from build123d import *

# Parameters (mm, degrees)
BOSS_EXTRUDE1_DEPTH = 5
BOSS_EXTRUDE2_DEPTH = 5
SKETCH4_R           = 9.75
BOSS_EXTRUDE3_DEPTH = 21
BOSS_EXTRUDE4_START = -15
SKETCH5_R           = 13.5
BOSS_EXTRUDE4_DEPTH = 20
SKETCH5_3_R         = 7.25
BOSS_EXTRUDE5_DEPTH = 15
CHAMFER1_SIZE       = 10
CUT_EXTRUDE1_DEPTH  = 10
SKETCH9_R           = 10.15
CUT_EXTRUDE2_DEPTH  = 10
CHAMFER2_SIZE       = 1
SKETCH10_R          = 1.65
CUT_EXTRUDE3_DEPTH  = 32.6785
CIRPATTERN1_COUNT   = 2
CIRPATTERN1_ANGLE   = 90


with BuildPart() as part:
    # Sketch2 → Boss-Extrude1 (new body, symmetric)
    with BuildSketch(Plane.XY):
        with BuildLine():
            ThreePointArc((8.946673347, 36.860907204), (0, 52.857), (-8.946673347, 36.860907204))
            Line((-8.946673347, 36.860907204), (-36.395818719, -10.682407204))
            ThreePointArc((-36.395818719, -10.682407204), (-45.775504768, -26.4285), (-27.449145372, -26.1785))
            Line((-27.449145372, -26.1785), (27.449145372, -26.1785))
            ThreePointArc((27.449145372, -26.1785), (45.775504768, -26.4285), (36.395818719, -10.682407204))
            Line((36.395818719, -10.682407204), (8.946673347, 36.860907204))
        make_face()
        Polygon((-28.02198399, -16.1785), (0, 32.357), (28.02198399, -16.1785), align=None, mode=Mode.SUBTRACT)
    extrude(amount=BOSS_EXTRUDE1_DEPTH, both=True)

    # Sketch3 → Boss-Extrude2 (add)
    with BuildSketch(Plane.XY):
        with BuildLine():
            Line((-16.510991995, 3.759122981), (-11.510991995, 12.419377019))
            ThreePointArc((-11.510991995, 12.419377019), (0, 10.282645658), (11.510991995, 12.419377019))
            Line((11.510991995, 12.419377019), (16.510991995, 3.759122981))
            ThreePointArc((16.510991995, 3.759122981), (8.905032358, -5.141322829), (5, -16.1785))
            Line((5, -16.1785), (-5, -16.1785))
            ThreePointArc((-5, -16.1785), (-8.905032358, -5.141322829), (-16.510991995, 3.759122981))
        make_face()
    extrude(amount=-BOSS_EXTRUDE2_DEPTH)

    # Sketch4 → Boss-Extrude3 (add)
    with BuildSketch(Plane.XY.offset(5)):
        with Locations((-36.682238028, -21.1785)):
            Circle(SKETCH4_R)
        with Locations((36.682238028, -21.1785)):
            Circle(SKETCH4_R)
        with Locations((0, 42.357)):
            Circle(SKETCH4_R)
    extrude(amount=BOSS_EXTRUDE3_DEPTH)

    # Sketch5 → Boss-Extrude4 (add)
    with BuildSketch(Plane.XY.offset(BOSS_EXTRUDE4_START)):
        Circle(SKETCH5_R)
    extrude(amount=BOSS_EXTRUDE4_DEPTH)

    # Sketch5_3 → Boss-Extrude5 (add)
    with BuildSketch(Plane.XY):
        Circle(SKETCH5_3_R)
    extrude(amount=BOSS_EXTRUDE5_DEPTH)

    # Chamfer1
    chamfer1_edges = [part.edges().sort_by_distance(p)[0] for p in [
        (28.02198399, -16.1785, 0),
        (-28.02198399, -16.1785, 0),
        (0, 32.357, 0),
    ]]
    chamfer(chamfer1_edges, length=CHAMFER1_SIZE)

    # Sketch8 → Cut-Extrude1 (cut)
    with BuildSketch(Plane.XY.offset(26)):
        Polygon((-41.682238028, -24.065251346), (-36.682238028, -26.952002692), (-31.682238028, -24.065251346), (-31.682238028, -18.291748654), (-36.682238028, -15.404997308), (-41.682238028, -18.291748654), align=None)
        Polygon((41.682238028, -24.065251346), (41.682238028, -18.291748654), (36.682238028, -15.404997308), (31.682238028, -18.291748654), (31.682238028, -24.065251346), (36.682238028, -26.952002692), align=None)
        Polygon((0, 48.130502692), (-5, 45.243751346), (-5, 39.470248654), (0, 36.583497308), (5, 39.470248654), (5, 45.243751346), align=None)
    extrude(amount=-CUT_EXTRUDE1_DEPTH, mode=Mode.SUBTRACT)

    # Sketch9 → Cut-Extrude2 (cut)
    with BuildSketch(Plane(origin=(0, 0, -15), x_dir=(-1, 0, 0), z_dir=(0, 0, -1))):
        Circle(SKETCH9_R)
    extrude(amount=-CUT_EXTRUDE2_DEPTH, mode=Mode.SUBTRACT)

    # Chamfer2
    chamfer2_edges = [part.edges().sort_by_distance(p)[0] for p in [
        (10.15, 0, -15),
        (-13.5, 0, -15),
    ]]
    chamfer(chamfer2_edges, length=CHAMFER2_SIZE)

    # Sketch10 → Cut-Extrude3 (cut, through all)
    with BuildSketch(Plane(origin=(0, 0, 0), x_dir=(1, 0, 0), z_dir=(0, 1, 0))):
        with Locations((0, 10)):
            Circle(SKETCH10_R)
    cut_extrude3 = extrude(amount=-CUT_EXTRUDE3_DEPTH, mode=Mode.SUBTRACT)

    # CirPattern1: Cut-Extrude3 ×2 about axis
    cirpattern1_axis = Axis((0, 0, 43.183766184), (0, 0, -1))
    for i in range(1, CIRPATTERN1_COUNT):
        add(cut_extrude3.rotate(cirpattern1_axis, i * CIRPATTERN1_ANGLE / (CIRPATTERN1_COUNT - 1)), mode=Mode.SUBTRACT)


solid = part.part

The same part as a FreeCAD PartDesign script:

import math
import FreeCAD as App
import Part
import Sketcher
Q = App.Units.Quantity


def edges_at(feature, points):
    """Names of the edges that pass closest to the given points."""
    edges = feature.Shape.Edges
    near = lambda p: min(range(len(edges)), key=lambda i: edges[i].distToShape(Part.Vertex(*p))[0])
    return sorted({f"Edge{near(p) + 1}" for p in points})


def add_polygon(sketch, points):
    """Adds a closed chain of lines whose ends are joined by coincident constraints."""
    first, n = sketch.GeometryCount, len(points)
    for a, b in zip(points, points[1:] + points[:1]):
        sketch.addGeometry(Part.LineSegment(App.Vector(*a, 0), App.Vector(*b, 0)), False)
    for i in range(n):
        sketch.addConstraint(Sketcher.Constraint("Coincident", first + i, 2, first + (i + 1) % n, 1))

doc = App.newDocument("Part")
body = doc.addObject("PartDesign::Body", "Body")

# Sketch on XY plane
sketch1 = body.newObject("Sketcher::SketchObject", "Sketch")
sketch1.AttachmentSupport = (doc.getObject("XY_Plane"), [""])
sketch1.MapMode = "FlatFace"
sketch1.addGeometry(Part.ArcOfCircle(Part.Circle(App.Vector(0, 42, 0), App.Vector(0, 0, 1), 10), math.radians(-32), math.radians(212)), False)  # 0
sketch1.addGeometry(Part.LineSegment(App.Vector(-9, 37, 0), App.Vector(-36, -11, 0)), False)  # 1
sketch1.addGeometry(Part.ArcOfCircle(Part.Circle(App.Vector(-37, -21, 0), App.Vector(0, 0, 1), 10), math.radians(88), math.radians(332)), False)  # 2
sketch1.addGeometry(Part.LineSegment(App.Vector(-27, -26, 0), App.Vector(27, -26, 0)), False)  # 3
sketch1.addGeometry(Part.ArcOfCircle(Part.Circle(App.Vector(37, -21, 0), App.Vector(0, 0, 1), 10), math.radians(-152), math.radians(92)), False)  # 4
sketch1.addGeometry(Part.LineSegment(App.Vector(36, -11, 0), App.Vector(9, 37, 0)), False)  # 5
add_polygon(sketch1, [(28, -16), (-28, -16), (0, 32)])  # lines 6-8
sketch1.addConstraint([
    Sketcher.Constraint("Coincident", 0, 2, 1, 1),
    Sketcher.Constraint("Coincident", 1, 2, 2, 1),
    Sketcher.Constraint("Coincident", 2, 2, 3, 1),
    Sketcher.Constraint("Coincident", 3, 2, 4, 1),
    Sketcher.Constraint("Coincident", 4, 2, 5, 1),
    Sketcher.Constraint("Coincident", 5, 2, 0, 1),
    Sketcher.Constraint("Horizontal", 3),
    Sketcher.Constraint("Horizontal", 6),
    Sketcher.Constraint("Equal", 0, 2),
    Sketcher.Constraint("Equal", 2, 4),
    Sketcher.Constraint("Symmetric", 2, 3, 4, 3, -2),
    Sketcher.Constraint("Symmetric", 0, 2, 5, 2, -2),
    Sketcher.Constraint("PointOnObject", 7, 2, -2),
    Sketcher.Constraint("Parallel", 1, 7),
    Sketcher.Constraint("Parallel", 5, 8),
    Sketcher.Constraint("Horizontal", 1, 2, 4, 2),
    Sketcher.Constraint("Radius", 0, 10.5),
    Sketcher.Constraint("Angle", 1, Q("-120 deg")),
    Sketcher.Constraint("DistanceY", 2, 2, 2, 3, 5.0),
    Sketcher.Constraint("DistanceY", 2, 3, 6, 2, 5.0),
    Sketcher.Constraint("DistanceY", 7, 2, 0, 3, 10.0),
    Sketcher.Constraint("DistanceY", -1, 1, 0, 3, 42.357),
    Sketcher.Constraint("DistanceX", 3, 1, 3, 2, 54.898291),
    Sketcher.Constraint("DistanceY", 2, 3, -1, 1, 21.1785),
    Sketcher.Constraint("Distance", 1, 54.898291),
])
pad1 = body.newObject("PartDesign::Pad", "Pad")
pad1.Profile = sketch1
pad1.Length = 10
pad1.Midplane = True

# Sketch on XY plane
sketch2 = body.newObject("Sketcher::SketchObject", "Sketch001")
sketch2.AttachmentSupport = (doc.getObject("XY_Plane"), [""])
sketch2.MapMode = "FlatFace"
sketch2.addGeometry([
    Part.LineSegment(App.Vector(-12, 12, 0), App.Vector(-17, 4, 0)),  # 0
    Part.ArcOfCircle(Part.Circle(App.Vector(-37, -21, 0), App.Vector(0, 0, 1), 32), math.radians(9), math.radians(51)),  # 1
    Part.LineSegment(App.Vector(-5, -16, 0), App.Vector(5, -16, 0)),  # 2
    Part.ArcOfCircle(Part.Circle(App.Vector(37, -21, 0), App.Vector(0, 0, 1), 32), math.radians(129), math.radians(171)),  # 3
    Part.LineSegment(App.Vector(17, 4, 0), App.Vector(12, 12, 0)),  # 4
    Part.ArcOfCircle(Part.Circle(App.Vector(0, 42, 0), App.Vector(0, 0, 1), 32), math.radians(-111), math.radians(-69)),  # 5
], False)
sketch2.addConstraint([
    Sketcher.Constraint("Coincident", 0, 2, 1, 2),
    Sketcher.Constraint("Coincident", 1, 1, 2, 1),
    Sketcher.Constraint("Coincident", 2, 2, 3, 2),
    Sketcher.Constraint("Coincident", 3, 1, 4, 1),
    Sketcher.Constraint("Coincident", 4, 2, 5, 2),
    Sketcher.Constraint("Coincident", 5, 1, 0, 1),
    Sketcher.Constraint("Horizontal", 2),
    Sketcher.Constraint("Equal", 1, 3),
    Sketcher.Constraint("Equal", 3, 5),
    Sketcher.Constraint("Symmetric", 1, 3, 3, 3, -2),
    Sketcher.Constraint("Symmetric", 4, 2, 5, 1, -2),
    Sketcher.Constraint("Horizontal", 0, 2, 3, 1),
    Sketcher.Constraint("DistanceX", 2, 1, 2, 2, 10.0),
    Sketcher.Constraint("Angle", 0, Q("-120 deg")),
    Sketcher.Constraint("Distance", 0, 10.0),
    Sketcher.Constraint("DistanceY", 1, 3, 1, 1, 5.0),
    Sketcher.Constraint("DistanceY", -1, 1, 5, 3, 42.357),
    Sketcher.Constraint("Radius", 1, 32.074354),
    Sketcher.Constraint("DistanceY", 1, 3, -1, 1, 21.1785),
])
pad2 = body.newObject("PartDesign::Pad", "Pad001")
pad2.Profile = sketch2
pad2.Length = 5
pad2.Reversed = True

# Sketch on XY plane
sketch3 = body.newObject("Sketcher::SketchObject", "Sketch002")
sketch3.AttachmentSupport = (doc.getObject("XY_Plane"), [""])
sketch3.MapMode = "FlatFace"
sketch3.AttachmentOffset = App.Placement(App.Vector(0, 0, 5), App.Rotation())
sketch3.addGeometry([
    Part.Circle(App.Vector(-37, -21, 0), App.Vector(0, 0, 1), 10),
    Part.Circle(App.Vector(37, -21, 0), App.Vector(0, 0, 1), 10),
    Part.Circle(App.Vector(0, 42, 0), App.Vector(0, 0, 1), 10),
], False)
sketch3.addConstraint([
    Sketcher.Constraint("Equal", 0, 1),
    Sketcher.Constraint("Equal", 1, 2),
    Sketcher.Constraint("Symmetric", 0, 3, 1, 3, -2),
    Sketcher.Constraint("PointOnObject", 2, 3, -2),
    Sketcher.Constraint("Diameter", 0, 19.5),
    Sketcher.Constraint("DistanceY", -1, 1, 2, 3, 42.357),
    Sketcher.Constraint("DistanceY", 0, 3, -1, 1, 21.1785),
    Sketcher.Constraint("DistanceX", 0, 3, -1, 1, 36.682238),
])
pad3 = body.newObject("PartDesign::Pad", "Pad002")
pad3.Profile = sketch3
pad3.Length = 21

# Sketch on XY plane
sketch4 = body.newObject("Sketcher::SketchObject", "Sketch003")
sketch4.AttachmentSupport = (doc.getObject("XY_Plane"), [""])
sketch4.MapMode = "FlatFace"
sketch4.AttachmentOffset = App.Placement(App.Vector(0, 0, -15), App.Rotation())
sketch4.addGeometry(Part.Circle(App.Vector(0, 0, 0), App.Vector(0, 0, 1), 14), False)
sketch4.addConstraint([
    Sketcher.Constraint("Coincident", 0, 3, -1, 1),
    Sketcher.Constraint("Diameter", 0, 27.0),
])
pad4 = body.newObject("PartDesign::Pad", "Pad003")
pad4.Profile = sketch4
pad4.Length = 20

# Sketch on XY plane
sketch5 = body.newObject("Sketcher::SketchObject", "Sketch004")
sketch5.AttachmentSupport = (doc.getObject("XY_Plane"), [""])
sketch5.MapMode = "FlatFace"
sketch5.addGeometry(Part.Circle(App.Vector(0, 0, 0), App.Vector(0, 0, 1), 7), False)
sketch5.addConstraint([
    Sketcher.Constraint("Coincident", 0, 3, -1, 1),
    Sketcher.Constraint("Diameter", 0, 14.5),
])
pad5 = body.newObject("PartDesign::Pad", "Pad004")
pad5.Profile = sketch5
pad5.Length = 15
doc.recompute()

chamfer = body.newObject("PartDesign::Chamfer", "Chamfer")
chamfer.Base = (pad5, edges_at(pad5, [(28.022, -16.178, 0), (-28.022, -16.178, 0), (0, 32.357, 0)]))
chamfer.Size = 10

# Sketch on XY plane
sketch6 = body.newObject("Sketcher::SketchObject", "Sketch005")
sketch6.AttachmentSupport = (doc.getObject("XY_Plane"), [""])
sketch6.MapMode = "FlatFace"
sketch6.AttachmentOffset = App.Placement(App.Vector(0, 0, 26), App.Rotation())
add_polygon(sketch6, [(-42, -24), (-37, -27), (-32, -24), (-32, -18), (-37, -15), (-42, -18)])  # lines 0-5
add_polygon(sketch6, [(42, -24), (42, -18), (37, -15), (32, -18), (32, -24), (37, -27)])  # lines 6-11
add_polygon(sketch6, [(0, 48), (-5, 45), (-5, 39), (0, 37), (5, 39), (5, 45)])  # lines 12-17
sketch6.addConstraint([
    Sketcher.Constraint("Vertical", 2),
    Sketcher.Constraint("Vertical", 5),
    Sketcher.Constraint("Vertical", 6),
    Sketcher.Constraint("Vertical", 9),
    Sketcher.Constraint("Vertical", 13),
    Sketcher.Constraint("Vertical", 16),
    Sketcher.Constraint("Symmetric", 4, 2, 6, 2, -2),
    Sketcher.Constraint("Symmetric", 3, 2, 7, 2, -2),
    Sketcher.Constraint("Symmetric", 2, 2, 8, 2, -2),
    Sketcher.Constraint("Symmetric", 0, 2, 10, 2, -2),
    Sketcher.Constraint("Symmetric", 13, 2, 15, 2, -2),
    Sketcher.Constraint("PointOnObject", 14, 2, -2),
    Sketcher.Constraint("PointOnObject", 17, 2, -2),
    Sketcher.Constraint("Parallel", 0, 3),
    Sketcher.Constraint("Parallel", 1, 4),
    Sketcher.Constraint("Parallel", 3, 7),
    Sketcher.Constraint("Parallel", 7, 10),
    Sketcher.Constraint("Parallel", 8, 11),
    Sketcher.Constraint("Parallel", 11, 12),
    Sketcher.Constraint("Parallel", 10, 14),
    Sketcher.Constraint("Parallel", 14, 17),
    Sketcher.Constraint("Horizontal", 2, 2, 4, 2),
    Sketcher.Constraint("Horizontal", 1, 2, 5, 2),
    Sketcher.Constraint("Equal", 9, 13),
    Sketcher.Constraint("Equal", 11, 12),
    Sketcher.Constraint("Angle", 0, Q("-30 deg")),
    Sketcher.Constraint("DistanceX", 12, 2, -1, 1, 5.0),
    Sketcher.Constraint("DistanceY", 2, 2, 12, 2, 63.5355),
    Sketcher.Constraint("DistanceY", 2, 1, 2, 2, 5.773503),
    Sketcher.Constraint("DistanceX", 0, 2, -1, 1, 36.682238),
    Sketcher.Constraint("DistanceY", 1, 2, -1, 1, 24.065251),
])
pocket1 = body.newObject("PartDesign::Pocket", "Pocket")
pocket1.Profile = sketch6
pocket1.Length = 10

# Sketch on XY plane
sketch7 = body.newObject("Sketcher::SketchObject", "Sketch006")
sketch7.AttachmentSupport = (doc.getObject("XY_Plane"), [""])
sketch7.MapMode = "FlatFace"
sketch7.AttachmentOffset = App.Placement(App.Vector(0, 0, -15), App.Rotation())
sketch7.addGeometry(Part.Circle(App.Vector(0, 0, 0), App.Vector(0, 0, 1), 10), False)
sketch7.addConstraint([
    Sketcher.Constraint("Coincident", 0, 3, -1, 1),
    Sketcher.Constraint("Diameter", 0, 20.3),
])
pocket2 = body.newObject("PartDesign::Pocket", "Pocket001")
pocket2.Profile = sketch7
pocket2.Length = 10
pocket2.Reversed = True
doc.recompute()

chamfer2 = body.newObject("PartDesign::Chamfer", "Chamfer001")
chamfer2.Base = (pocket2, edges_at(pocket2, [(10.15, 0, -15), (-13.5, 0, -15)]))
chamfer2.Size = 1

# Sketch on XZ plane
sketch8 = body.newObject("Sketcher::SketchObject", "Sketch007")
sketch8.AttachmentSupport = (doc.getObject("XZ_Plane"), [""])
sketch8.MapMode = "FlatFace"
sketch8.addGeometry(Part.Circle(App.Vector(0, -10, 0), App.Vector(0, 0, 1), 1.6), False)
sketch8.addConstraint([
    Sketcher.Constraint("PointOnObject", 0, 3, -2),
    Sketcher.Constraint("Diameter", 0, 3.3),
    Sketcher.Constraint("DistanceY", 0, 3, -1, 1, 10.0),
])
pocket3 = body.newObject("PartDesign::Pocket", "Pocket002")
pocket3.Profile = sketch8
pocket3.Type = "ThroughAll"
pocket3.Reversed = True
doc.recompute()

polarpattern = body.newObject("PartDesign::PolarPattern", "PolarPattern")
polarpattern.Originals = [pocket3]
polarpattern.Axis = (doc.getObject("Z_Axis"), [""])
polarpattern.Angle = 90
polarpattern.Occurrences = 2
polarpattern.Reversed = True
body.Tip = polarpattern

doc.recompute()
